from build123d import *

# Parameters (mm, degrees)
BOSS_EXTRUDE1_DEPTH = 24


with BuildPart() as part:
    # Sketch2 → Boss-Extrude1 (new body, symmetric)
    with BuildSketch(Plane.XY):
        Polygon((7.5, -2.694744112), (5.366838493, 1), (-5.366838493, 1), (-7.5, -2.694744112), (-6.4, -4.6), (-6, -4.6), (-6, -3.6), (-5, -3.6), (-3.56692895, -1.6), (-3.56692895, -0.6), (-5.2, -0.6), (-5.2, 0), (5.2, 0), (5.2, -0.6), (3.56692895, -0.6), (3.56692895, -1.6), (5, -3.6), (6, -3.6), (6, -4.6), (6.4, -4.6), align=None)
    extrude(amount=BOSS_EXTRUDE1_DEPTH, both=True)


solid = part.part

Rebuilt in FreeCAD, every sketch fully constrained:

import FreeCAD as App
import Part
import Sketcher
from FreeCAD import Vector
Q = App.Units.Quantity


def add_polygon(sketch, points):
    """Adds a closed chain of lines whose ends are joined by coincident constraints."""
    first, n = sketch.GeometryCount, len(points)
    for a, b in zip(points, points[1:] + points[:1]):
        sketch.addGeometry(Part.LineSegment(App.Vector(*a, 0), App.Vector(*b, 0)), False)
    for i in range(n):
        sketch.addConstraint(Sketcher.Constraint("Coincident", first + i, 2, first + (i + 1) % n, 1))

doc = App.newDocument("Part")
body = doc.addObject("PartDesign::Body", "Body")

# Sketch on XY plane
sketch1 = body.newObject("Sketcher::SketchObject", "Sketch")
sketch1.AttachmentSupport = (doc.getObject("XY_Plane"), [""])
sketch1.MapMode = "FlatFace"
add_polygon(sketch1, [(7.5, -2.69), (5.37, 1), (-5.37, 1), (-7.5, -2.69), (-6.4, -4.6), (-6, -4.6), (-6, -3.6), (-5, -3.6), (-3.57, -1.6), (-3.57, -0.6), (-5.2, -0.6), (-5.2, 0), (5.2, 0), (5.2, -0.6), (3.57, -0.6), (3.57, -1.6), (5, -3.6), (6, -3.6), (6, -4.6), (6.4, -4.6)])  # lines 0-19
sketch1.addConstraint([
    Sketcher.Constraint("Horizontal", 1),
    Sketcher.Constraint("Horizontal", 4),
    Sketcher.Constraint("Vertical", 5),
    Sketcher.Constraint("Horizontal", 6),
    Sketcher.Constraint("Vertical", 8),
    Sketcher.Constraint("Horizontal", 9),
    Sketcher.Constraint("Vertical", 10),
    Sketcher.Constraint("Horizontal", 11),
    Sketcher.Constraint("Vertical", 12),
    Sketcher.Constraint("Horizontal", 13),
    Sketcher.Constraint("Vertical", 14),
    Sketcher.Constraint("Horizontal", 16),
    Sketcher.Constraint("Vertical", 17),
    Sketcher.Constraint("Horizontal", 18),
    Sketcher.Constraint("Symmetric", 10, 2, 11, 2, -1, 1),
    Sketcher.Constraint("Symmetric", 8, 2, 13, 2, -2),
    Sketcher.Constraint("Symmetric", 6, 2, 15, 2, -2),
    Sketcher.Constraint("Symmetric", 4, 2, 17, 2, -2),
    Sketcher.Constraint("Symmetric", 2, 2, 19, 2, -2),
    Sketcher.Constraint("Parallel", 0, 3),
    Sketcher.Constraint("Parallel", 2, 19),
    Sketcher.Constraint("Horizontal", 7, 2, 14, 2),
    Sketcher.Constraint("Equal", 4, 18),
    Sketcher.Constraint("Equal", 16, 5),
    Sketcher.Constraint("Equal", 5, 8),
    Sketcher.Constraint("DistanceX", 6, 1, 6, 2, Q("1 mm")),
    Sketcher.Constraint("Angle", 0, Q("120 deg")),
    Sketcher.Constraint("DistanceX", 4, 1, 4, 2, Q("0.4 mm")),
    Sketcher.Constraint("DistanceX", 11, 1, 11, 2, Q("10.4 mm")),
    Sketcher.Constraint("DistanceY", 10, 1, 10, 2, Q("0.6 mm")),
    Sketcher.Constraint("DistanceY", -1, 1, 0, 2, Q("1 mm")),
    Sketcher.Constraint("DistanceX", 4, 2, -1, 1, Q("6 mm")),
    Sketcher.Constraint("DistanceY", 6, 2, 7, 2, Q("2 mm")),
    Sketcher.Constraint("Distance", 3, Q("2.2 mm")),
    Sketcher.Constraint("DistanceX", 9, 2, 9, 1, Q("1.633071 mm")),
])
pad1 = body.newObject("PartDesign::Pad", "Pad")
pad1.Profile = sketch1
pad1.Length = 48
pad1.Midplane = True

doc.recompute()
